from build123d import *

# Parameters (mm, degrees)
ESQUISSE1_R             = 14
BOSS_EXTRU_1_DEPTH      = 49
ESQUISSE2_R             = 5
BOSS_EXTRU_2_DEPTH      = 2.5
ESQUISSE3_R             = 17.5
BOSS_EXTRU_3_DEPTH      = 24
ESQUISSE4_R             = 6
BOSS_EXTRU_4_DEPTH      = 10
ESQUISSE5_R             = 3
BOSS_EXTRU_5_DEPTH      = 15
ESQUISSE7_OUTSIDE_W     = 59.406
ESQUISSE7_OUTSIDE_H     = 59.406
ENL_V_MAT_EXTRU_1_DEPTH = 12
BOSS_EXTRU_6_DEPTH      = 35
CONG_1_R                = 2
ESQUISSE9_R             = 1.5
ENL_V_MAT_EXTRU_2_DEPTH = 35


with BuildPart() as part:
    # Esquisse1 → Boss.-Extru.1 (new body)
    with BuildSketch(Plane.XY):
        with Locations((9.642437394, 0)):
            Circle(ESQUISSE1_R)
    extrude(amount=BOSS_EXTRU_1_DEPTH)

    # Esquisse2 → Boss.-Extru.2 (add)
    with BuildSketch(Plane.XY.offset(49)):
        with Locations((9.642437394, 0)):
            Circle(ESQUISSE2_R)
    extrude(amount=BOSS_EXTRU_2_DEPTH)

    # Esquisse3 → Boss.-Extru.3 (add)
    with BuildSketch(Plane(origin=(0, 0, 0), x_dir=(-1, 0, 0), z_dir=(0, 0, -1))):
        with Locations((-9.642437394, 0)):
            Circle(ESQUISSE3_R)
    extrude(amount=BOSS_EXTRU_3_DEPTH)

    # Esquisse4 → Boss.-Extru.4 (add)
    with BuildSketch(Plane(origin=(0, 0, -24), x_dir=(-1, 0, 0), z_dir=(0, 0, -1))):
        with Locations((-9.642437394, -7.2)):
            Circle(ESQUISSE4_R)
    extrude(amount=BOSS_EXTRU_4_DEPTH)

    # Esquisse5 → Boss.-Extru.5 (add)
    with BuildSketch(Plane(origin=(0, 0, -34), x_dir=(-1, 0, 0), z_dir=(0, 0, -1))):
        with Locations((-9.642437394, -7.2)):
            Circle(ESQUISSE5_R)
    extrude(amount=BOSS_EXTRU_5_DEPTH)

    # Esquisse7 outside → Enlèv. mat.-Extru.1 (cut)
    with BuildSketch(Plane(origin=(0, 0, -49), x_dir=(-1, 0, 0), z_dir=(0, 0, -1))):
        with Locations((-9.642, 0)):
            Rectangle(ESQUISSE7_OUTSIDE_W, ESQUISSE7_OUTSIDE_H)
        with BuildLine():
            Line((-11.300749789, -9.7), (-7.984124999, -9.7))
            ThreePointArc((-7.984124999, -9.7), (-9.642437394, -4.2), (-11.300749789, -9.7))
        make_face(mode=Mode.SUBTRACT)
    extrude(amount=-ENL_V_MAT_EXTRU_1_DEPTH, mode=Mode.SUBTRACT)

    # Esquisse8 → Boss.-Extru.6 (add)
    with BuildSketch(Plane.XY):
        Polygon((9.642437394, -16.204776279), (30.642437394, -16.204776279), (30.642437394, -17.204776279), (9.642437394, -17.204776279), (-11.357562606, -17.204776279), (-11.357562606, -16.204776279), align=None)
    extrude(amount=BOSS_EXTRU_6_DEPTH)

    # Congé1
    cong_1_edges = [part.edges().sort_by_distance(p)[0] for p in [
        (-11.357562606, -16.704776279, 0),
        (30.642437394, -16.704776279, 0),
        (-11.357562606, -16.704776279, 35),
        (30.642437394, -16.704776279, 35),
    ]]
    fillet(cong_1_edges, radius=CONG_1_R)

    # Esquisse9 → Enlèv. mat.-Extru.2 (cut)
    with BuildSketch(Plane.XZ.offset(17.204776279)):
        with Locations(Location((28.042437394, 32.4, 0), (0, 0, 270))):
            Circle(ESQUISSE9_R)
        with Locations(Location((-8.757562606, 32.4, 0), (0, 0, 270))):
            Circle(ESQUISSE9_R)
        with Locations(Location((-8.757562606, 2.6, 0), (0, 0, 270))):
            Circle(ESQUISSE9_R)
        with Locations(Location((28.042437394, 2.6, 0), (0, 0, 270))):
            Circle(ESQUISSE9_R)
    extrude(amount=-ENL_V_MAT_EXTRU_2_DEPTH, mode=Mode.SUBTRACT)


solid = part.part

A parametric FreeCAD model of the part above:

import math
import FreeCAD as App
import Part
import Sketcher

V = App.Vector


def edges_at(feature, points):
    """Names of the edges that pass closest to the given points."""
    edges = feature.Shape.Edges
    near = lambda p: min(range(len(edges)), key=lambda i: edges[i].distToShape(Part.Vertex(*p))[0])
    return sorted({f"Edge{near(p) + 1}" for p in points})


def add_polygon(sketch, points):
    """Adds a closed chain of lines whose ends are joined by coincident constraints."""
    first, n = sketch.GeometryCount, len(points)
    for a, b in zip(points, points[1:] + points[:1]):
        sketch.addGeometry(Part.LineSegment(App.Vector(*a, 0), App.Vector(*b, 0)), False)
    for i in range(n):
        sketch.addConstraint(Sketcher.Constraint("Coincident", first + i, 2, first + (i + 1) % n, 1))

doc = App.newDocument("Part")
body = doc.addObject("PartDesign::Body", "Body")

sketch1 = doc.addObject("Sketcher::SketchObject", "Sketch")
body.addObject(sketch1)
sketch1.AttachmentSupport = (doc.XY_Plane, [""])
sketch1.MapMode = "FlatFace"
sketch1.addGeometry(Part.Circle(V(10, 0, 0), V(0, 0, 1), 14), False)
sketch1.addConstraint(Sketcher.Constraint("PointOnObject", 0, 3, -1))
sketch1.addConstraint(Sketcher.Constraint("Diameter", 0, 28.0))
sketch1.addConstraint(Sketcher.Constraint("DistanceX", -1, 1, 0, 3, 9.642437))
pad1 = doc.addObject("PartDesign::Pad", "Pad")
body.addObject(pad1)
pad1.Profile = sketch1
pad1.Length = 49

sketch2 = doc.addObject("Sketcher::SketchObject", "Sketch001")
body.addObject(sketch2)
sketch2.AttachmentSupport = (doc.XY_Plane, [""])
sketch2.MapMode = "FlatFace"
sketch2.AttachmentOffset = App.Placement(V(0, 0, 49), App.Rotation())
sketch2.addGeometry(Part.Circle(V(10, 0, 0), V(0, 0, 1), 5), False)
sketch2.addConstraint(Sketcher.Constraint("PointOnObject", 0, 3, -1))
sketch2.addConstraint(Sketcher.Constraint("Diameter", 0, 10.0))
sketch2.addConstraint(Sketcher.Constraint("DistanceX", -1, 1, 0, 3, 9.642437))
pad2 = doc.addObject("PartDesign::Pad", "Pad001")
body.addObject(pad2)
pad2.Profile = sketch2
pad2.Length = 2.5

sketch3 = doc.addObject("Sketcher::SketchObject", "Sketch002")
body.addObject(sketch3)
sketch3.AttachmentSupport = (doc.XY_Plane, [""])
sketch3.MapMode = "FlatFace"
sketch3.addGeometry(Part.Circle(V(10, 0, 0), V(0, 0, 1), 18), False)
sketch3.addConstraint(Sketcher.Constraint("PointOnObject", 0, 3, -1))
sketch3.addConstraint(Sketcher.Constraint("Diameter", 0, 35.0))
sketch3.addConstraint(Sketcher.Constraint("DistanceX", -1, 1, 0, 3, 9.642437))
pad3 = doc.addObject("PartDesign::Pad", "Pad002")
body.addObject(pad3)
pad3.Profile = sketch3
pad3.Length = 24
pad3.Reversed = True

sketch4 = doc.addObject("Sketcher::SketchObject", "Sketch003")
body.addObject(sketch4)
sketch4.AttachmentSupport = (doc.XY_Plane, [""])
sketch4.MapMode = "FlatFace"
sketch4.AttachmentOffset = App.Placement(V(0, 0, -24), App.Rotation())
sketch4.addGeometry(Part.Circle(V(10, -7, 0), V(0, 0, 1), 6), False)
sketch4.addConstraint(Sketcher.Constraint("Diameter", 0, 12.0))
sketch4.addConstraint(Sketcher.Constraint("DistanceY", 0, 3, -1, 1, 7.2))
sketch4.addConstraint(Sketcher.Constraint("DistanceX", -1, 1, 0, 3, 9.642437))
pad4 = doc.addObject("PartDesign::Pad", "Pad003")
body.addObject(pad4)
pad4.Profile = sketch4
pad4.Length = 10
pad4.Reversed = True

sketch5 = doc.addObject("Sketcher::SketchObject", "Sketch004")
body.addObject(sketch5)
sketch5.AttachmentSupport = (doc.XY_Plane, [""])
sketch5.MapMode = "FlatFace"
sketch5.AttachmentOffset = App.Placement(V(0, 0, -34), App.Rotation())
sketch5.addGeometry(Part.Circle(V(9.6, -7.2, 0), V(0, 0, 1), 3), False)
sketch5.addConstraint(Sketcher.Constraint("Diameter", 0, 6.0))
sketch5.addConstraint(Sketcher.Constraint("DistanceY", 0, 3, -1, 1, 7.2))
sketch5.addConstraint(Sketcher.Constraint("DistanceX", -1, 1, 0, 3, 9.642437))
pad5 = doc.addObject("PartDesign::Pad", "Pad004")
body.addObject(pad5)
pad5.Profile = sketch5
pad5.Length = 15
pad5.Reversed = True

sketch6 = doc.addObject("Sketcher::SketchObject", "Sketch005")
body.addObject(sketch6)
sketch6.AttachmentSupport = (doc.XY_Plane, [""])
sketch6.MapMode = "FlatFace"
sketch6.AttachmentOffset = App.Placement(V(0, 0, -49), App.Rotation())
add_polygon(sketch6, [(39.3, 29.7), (39.3, -29.7), (-20.1, -29.7), (-20.1, 29.7)])
sketch6.addGeometry(Part.LineSegment(V(8, -9.7, 0), V(11.3, -9.7, 0)), False)
sketch6.addGeometry(Part.ArcOfCircle(Part.Circle(V(9.6, -7.2, 0), V(0, 0, 1), 3), math.radians(-56), math.radians(236)), False)
sketch6.addConstraint(Sketcher.Constraint("Coincident", 4, 1, 5, 2))
sketch6.addConstraint(Sketcher.Constraint("Coincident", 5, 1, 4, 2))
sketch6.addConstraint(Sketcher.Constraint("Vertical", 0))
sketch6.addConstraint(Sketcher.Constraint("Horizontal", 1))
sketch6.addConstraint(Sketcher.Constraint("Vertical", 2))
sketch6.addConstraint(Sketcher.Constraint("Horizontal", 3))
sketch6.addConstraint(Sketcher.Constraint("Horizontal", 4))
sketch6.addConstraint(Sketcher.Constraint("Equal", 3, 0))
sketch6.addConstraint(Sketcher.Constraint("Radius", 5, 3.0))
sketch6.addConstraint(Sketcher.Constraint("DistanceY", 5, 3, -1, 1, 7.2))
sketch6.addConstraint(Sketcher.Constraint("DistanceY", 4, 1, -1, 1, 9.7))
sketch6.addConstraint(Sketcher.Constraint("DistanceX", 1, 2, 1, 1, 59.406))
sketch6.addConstraint(Sketcher.Constraint("DistanceX", -1, 1, 0, 2, 39.345))
sketch6.addConstraint(Sketcher.Constraint("DistanceY", 0, 2, -1, 1, 29.703))
sketch6.addConstraint(Sketcher.Constraint("DistanceX", -1, 1, 5, 1, 11.30075))
pocket1 = doc.addObject("PartDesign::Pocket", "Pocket")
body.addObject(pocket1)
pocket1.Profile = sketch6
pocket1.Length = 12
pocket1.Reversed = True

sketch7 = doc.addObject("Sketcher::SketchObject", "Sketch006")
body.addObject(sketch7)
sketch7.AttachmentSupport = (doc.XY_Plane, [""])
sketch7.MapMode = "FlatFace"
add_polygon(sketch7, [(30.6, -16.2), (-11.4, -16.2), (-11.4, -17.2), (30.6, -17.2)])
sketch7.addConstraint(Sketcher.Constraint("Horizontal", 0))
sketch7.addConstraint(Sketcher.Constraint("Vertical", 1))
sketch7.addConstraint(Sketcher.Constraint("Horizontal", 2))
sketch7.addConstraint(Sketcher.Constraint("Vertical", 3))
sketch7.addConstraint(Sketcher.Constraint("DistanceX", 0, 2, 0, 1, 42.0))
sketch7.addConstraint(Sketcher.Constraint("DistanceY", 1, 2, 1, 1, 1.0))
sketch7.addConstraint(Sketcher.Constraint("DistanceX", 0, 2, -1, 1, 11.357563))
sketch7.addConstraint(Sketcher.Constraint("DistanceY", 0, 2, -1, 1, 16.204776))
pad6 = doc.addObject("PartDesign::Pad", "Pad005")
body.addObject(pad6)
pad6.Profile = sketch7
pad6.Length = 35
doc.recompute()

fillet = doc.addObject("PartDesign::Fillet", "Fillet")
body.addObject(fillet)
fillet.Base = (pad6, edges_at(pad6, [
    (-11.358, -16.705, 0),
    (30.642, -16.705, 0),
    (-11.358, -16.705, 35),
    (30.642, -16.705, 35),
]))
fillet.Radius = 2

sketch8 = doc.addObject("Sketcher::SketchObject", "Sketch007")
body.addObject(sketch8)
sketch8.AttachmentSupport = (doc.XZ_Plane, [""])
sketch8.MapMode = "FlatFace"
sketch8.AttachmentOffset = App.Placement(V(0, 0, 17.204776), App.Rotation())
sketch8.addGeometry(Part.Circle(V(28, 32.4, 0), V(0, 0, 1), 1.5), False)
sketch8.addGeometry(Part.Circle(V(-8.8, 32.4, 0), V(0, 0, 1), 1.5), False)
sketch8.addGeometry(Part.Circle(V(-8.8, 2.6, 0), V(0, 0, 1), 1.5), False)
sketch8.addGeometry(Part.Circle(V(28, 2.6, 0), V(0, 0, 1), 1.5), False)
sketch8.addConstraint(Sketcher.Constraint("Equal", 0, 1))
sketch8.addConstraint(Sketcher.Constraint("Equal", 1, 2))
sketch8.addConstraint(Sketcher.Constraint("Equal", 2, 3))
sketch8.addConstraint(Sketcher.Constraint("Horizontal", 0, 3, 1, 3))
sketch8.addConstraint(Sketcher.Constraint("Horizontal", 2, 3, 3, 3))
sketch8.addConstraint(Sketcher.Constraint("Vertical", 1, 3, 2, 3))
sketch8.addConstraint(Sketcher.Constraint("Vertical", 0, 3, 3, 3))
sketch8.addConstraint(Sketcher.Constraint("Diameter", 0, 3.0))
sketch8.addConstraint(Sketcher.Constraint("DistanceY", -1, 1, 0, 3, 32.4))
sketch8.addConstraint(Sketcher.Constraint("DistanceY", -1, 1, 2, 3, 2.6))
sketch8.addConstraint(Sketcher.Constraint("DistanceX", 1, 3, 0, 3, 36.8))
sketch8.addConstraint(Sketcher.Constraint("DistanceX", -1, 1, 0, 3, 28.042437))
pocket2 = doc.addObject("PartDesign::Pocket", "Pocket001")
body.addObject(pocket2)
pocket2.Profile = sketch8
pocket2.Length = 35

doc.recompute()
